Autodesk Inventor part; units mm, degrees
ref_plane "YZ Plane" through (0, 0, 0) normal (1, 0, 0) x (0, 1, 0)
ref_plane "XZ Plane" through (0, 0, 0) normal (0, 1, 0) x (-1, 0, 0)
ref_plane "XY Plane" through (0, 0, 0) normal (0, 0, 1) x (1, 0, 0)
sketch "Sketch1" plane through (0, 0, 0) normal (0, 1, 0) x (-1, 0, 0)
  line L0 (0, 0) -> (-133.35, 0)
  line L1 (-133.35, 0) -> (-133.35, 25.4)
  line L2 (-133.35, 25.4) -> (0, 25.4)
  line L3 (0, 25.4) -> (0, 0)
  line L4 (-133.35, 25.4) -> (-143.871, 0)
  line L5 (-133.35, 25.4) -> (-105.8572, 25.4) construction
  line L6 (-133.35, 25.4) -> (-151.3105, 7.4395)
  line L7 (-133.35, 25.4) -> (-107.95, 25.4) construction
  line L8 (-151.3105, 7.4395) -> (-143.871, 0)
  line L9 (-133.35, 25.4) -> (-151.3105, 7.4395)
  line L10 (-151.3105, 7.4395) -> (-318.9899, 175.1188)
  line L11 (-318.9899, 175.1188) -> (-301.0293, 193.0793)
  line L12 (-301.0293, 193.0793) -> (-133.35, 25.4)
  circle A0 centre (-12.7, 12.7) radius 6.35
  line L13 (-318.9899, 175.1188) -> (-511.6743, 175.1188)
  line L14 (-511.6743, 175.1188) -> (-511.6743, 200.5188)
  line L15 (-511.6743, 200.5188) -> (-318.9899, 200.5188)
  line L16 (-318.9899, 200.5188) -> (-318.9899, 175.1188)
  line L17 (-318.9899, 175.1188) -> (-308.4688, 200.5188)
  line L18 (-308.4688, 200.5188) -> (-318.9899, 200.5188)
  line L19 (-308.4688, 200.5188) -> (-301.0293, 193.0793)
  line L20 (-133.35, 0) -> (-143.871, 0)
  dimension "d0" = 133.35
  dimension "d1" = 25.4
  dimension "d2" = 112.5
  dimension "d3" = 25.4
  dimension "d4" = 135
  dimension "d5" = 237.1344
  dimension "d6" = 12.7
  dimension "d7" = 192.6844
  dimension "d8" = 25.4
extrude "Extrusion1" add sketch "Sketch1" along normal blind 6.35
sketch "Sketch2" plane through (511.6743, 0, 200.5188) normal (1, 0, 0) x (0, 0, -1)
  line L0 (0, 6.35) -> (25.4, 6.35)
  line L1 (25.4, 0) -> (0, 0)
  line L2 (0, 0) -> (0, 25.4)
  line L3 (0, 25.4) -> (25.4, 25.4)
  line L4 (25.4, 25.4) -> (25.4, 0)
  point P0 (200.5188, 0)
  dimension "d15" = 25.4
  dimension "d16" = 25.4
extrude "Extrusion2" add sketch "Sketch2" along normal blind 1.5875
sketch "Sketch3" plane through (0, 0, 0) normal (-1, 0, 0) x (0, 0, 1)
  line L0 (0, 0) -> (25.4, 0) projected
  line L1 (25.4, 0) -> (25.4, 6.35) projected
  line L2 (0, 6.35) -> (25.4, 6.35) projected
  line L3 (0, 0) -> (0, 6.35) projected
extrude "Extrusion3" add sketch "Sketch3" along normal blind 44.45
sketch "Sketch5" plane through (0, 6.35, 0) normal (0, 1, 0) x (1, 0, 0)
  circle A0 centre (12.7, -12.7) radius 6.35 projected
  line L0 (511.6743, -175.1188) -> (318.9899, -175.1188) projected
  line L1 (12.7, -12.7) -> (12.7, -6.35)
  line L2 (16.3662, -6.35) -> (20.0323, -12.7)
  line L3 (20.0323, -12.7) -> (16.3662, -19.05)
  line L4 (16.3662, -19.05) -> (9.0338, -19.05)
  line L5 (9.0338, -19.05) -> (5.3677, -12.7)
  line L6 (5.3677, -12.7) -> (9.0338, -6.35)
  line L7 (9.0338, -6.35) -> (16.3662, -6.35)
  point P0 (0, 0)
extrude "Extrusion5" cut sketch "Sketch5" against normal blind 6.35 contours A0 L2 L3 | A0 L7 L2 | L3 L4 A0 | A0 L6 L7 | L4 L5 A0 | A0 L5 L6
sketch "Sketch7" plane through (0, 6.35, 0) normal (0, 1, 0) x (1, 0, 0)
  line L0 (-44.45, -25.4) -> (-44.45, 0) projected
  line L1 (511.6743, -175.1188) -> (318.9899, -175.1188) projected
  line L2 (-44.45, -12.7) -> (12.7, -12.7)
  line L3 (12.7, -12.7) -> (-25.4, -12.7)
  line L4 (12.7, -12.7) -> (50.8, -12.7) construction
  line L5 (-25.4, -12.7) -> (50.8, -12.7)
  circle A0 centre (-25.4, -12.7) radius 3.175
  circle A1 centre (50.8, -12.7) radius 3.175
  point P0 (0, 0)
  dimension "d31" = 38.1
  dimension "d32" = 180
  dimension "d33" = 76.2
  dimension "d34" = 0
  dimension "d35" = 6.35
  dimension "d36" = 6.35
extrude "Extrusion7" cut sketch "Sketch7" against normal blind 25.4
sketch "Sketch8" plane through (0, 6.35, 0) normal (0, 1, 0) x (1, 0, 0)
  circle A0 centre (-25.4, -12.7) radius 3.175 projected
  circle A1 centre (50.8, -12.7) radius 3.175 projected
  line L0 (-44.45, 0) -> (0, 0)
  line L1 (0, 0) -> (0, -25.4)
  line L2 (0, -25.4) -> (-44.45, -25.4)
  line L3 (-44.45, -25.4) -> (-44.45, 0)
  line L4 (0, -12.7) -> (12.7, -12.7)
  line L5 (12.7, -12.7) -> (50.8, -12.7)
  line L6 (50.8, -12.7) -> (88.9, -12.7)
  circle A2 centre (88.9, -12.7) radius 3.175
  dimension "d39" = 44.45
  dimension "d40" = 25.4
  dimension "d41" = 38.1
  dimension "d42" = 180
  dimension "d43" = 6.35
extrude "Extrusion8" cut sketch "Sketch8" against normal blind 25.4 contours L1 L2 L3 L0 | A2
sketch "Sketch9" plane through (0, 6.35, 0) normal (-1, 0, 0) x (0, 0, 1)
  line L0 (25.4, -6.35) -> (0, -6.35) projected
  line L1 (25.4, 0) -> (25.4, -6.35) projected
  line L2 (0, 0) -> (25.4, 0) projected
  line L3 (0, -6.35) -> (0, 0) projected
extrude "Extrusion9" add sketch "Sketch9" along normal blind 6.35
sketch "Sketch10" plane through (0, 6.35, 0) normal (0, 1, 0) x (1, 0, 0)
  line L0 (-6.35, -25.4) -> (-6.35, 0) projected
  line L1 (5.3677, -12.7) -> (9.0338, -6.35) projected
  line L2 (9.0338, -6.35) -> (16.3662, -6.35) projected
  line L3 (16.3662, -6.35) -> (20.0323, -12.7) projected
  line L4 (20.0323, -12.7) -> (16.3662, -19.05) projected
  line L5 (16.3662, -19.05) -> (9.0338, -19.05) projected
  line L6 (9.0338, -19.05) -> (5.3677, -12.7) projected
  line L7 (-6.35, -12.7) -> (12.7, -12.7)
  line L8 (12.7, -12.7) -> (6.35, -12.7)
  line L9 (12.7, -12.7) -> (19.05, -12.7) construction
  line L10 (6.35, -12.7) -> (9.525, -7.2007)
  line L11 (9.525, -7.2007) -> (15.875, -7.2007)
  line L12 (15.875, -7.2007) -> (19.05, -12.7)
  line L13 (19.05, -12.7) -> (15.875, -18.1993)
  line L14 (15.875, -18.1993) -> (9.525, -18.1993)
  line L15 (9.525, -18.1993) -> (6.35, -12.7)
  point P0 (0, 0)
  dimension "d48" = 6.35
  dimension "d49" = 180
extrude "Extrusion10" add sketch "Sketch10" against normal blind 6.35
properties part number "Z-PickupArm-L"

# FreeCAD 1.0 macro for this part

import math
import FreeCAD as App
import Part
import Sketcher
from FreeCAD import Vector
Q = App.Units.Quantity

doc = App.newDocument("Part")
body = doc.addObject("PartDesign::Body", "Body")

sketch1 = doc.addObject("Sketcher::SketchObject", "Sketch")
body.addObject(sketch1)
sketch1.AttachmentSupport = (doc.XZ_Plane, [""])
sketch1.MapMode = "FlatFace"
sketch1.addGeometry([
    Part.LineSegment(Vector(0, 0, 0), Vector(0, 25.4, 0)),
    Part.LineSegment(Vector(0, 25.4, 0), Vector(133.35, 25.4, 0)),
    Part.LineSegment(Vector(133.35, 25.4, 0), Vector(308.4688, 200.5188, 0)),
    Part.LineSegment(Vector(308.4688, 200.5188, 0), Vector(511.6743, 200.5188, 0)),
    Part.LineSegment(Vector(511.6743, 200.5188, 0), Vector(511.6743, 175.1188, 0)),
    Part.LineSegment(Vector(511.6743, 175.1188, 0), Vector(318.9899, 175.1188, 0)),
    Part.LineSegment(Vector(318.9899, 175.1188, 0), Vector(151.3105, 7.4395, 0)),
    Part.LineSegment(Vector(151.3105, 7.4395, 0), Vector(143.871, 0, 0)),
    Part.LineSegment(Vector(143.871, 0, 0), Vector(0, 0, 0)),
    Part.Circle(Vector(12.7, 12.7, 0), Vector(0, 0, 1), 6.35),
], False)
sketch1.addConstraint([
    Sketcher.Constraint("Coincident", 0, 2, 1, 1),
    Sketcher.Constraint("Coincident", 1, 2, 2, 1),
    Sketcher.Constraint("Coincident", 2, 2, 3, 1),
    Sketcher.Constraint("Coincident", 3, 2, 4, 1),
    Sketcher.Constraint("Coincident", 4, 2, 5, 1),
    Sketcher.Constraint("Coincident", 5, 2, 6, 1),
    Sketcher.Constraint("Coincident", 6, 2, 7, 1),
    Sketcher.Constraint("Coincident", 7, 2, 8, 1),
    Sketcher.Constraint("Coincident", 8, 2, 0, 1),
    Sketcher.Constraint("Vertical", 0),
    Sketcher.Constraint("Horizontal", 1),
    Sketcher.Constraint("Horizontal", 3),
    Sketcher.Constraint("Vertical", 4),
    Sketcher.Constraint("Horizontal", 5),
    Sketcher.Constraint("Horizontal", 8),
    Sketcher.Constraint("Coincident", 8, 2, -1, 1),
    Sketcher.Constraint("Parallel", 2, 6),
    Sketcher.Constraint("Parallel", 6, 7),
    Sketcher.Constraint("Equal", 0, 4),
    Sketcher.Constraint("Diameter", 9, Q("0.5 in")),
    Sketcher.Constraint("DistanceY", 0, 1, 0, 2, Q("1 in")),
    Sketcher.Constraint("Angle", 6, Q("-135 deg")),
    Sketcher.Constraint("DistanceX", 1, 1, 1, 2, Q("5.25 in")),
    Sketcher.Constraint("DistanceX", -1, 1, 9, 3, Q("0.5 in")),
    Sketcher.Constraint("DistanceY", -1, 1, 9, 3, Q("0.5 in")),
    Sketcher.Constraint("DistanceX", 5, 2, 5, 1, Q("7.586 in")),
    Sketcher.Constraint("Distance", 6, Q("9.336 in")),
    Sketcher.Constraint("Distance", 2, Q("9.7502 in")),
    Sketcher.Constraint("DistanceX", 3, 1, 3, 2, Q("203.2055 mm")),
])
pad1 = doc.addObject("PartDesign::Pad", "Pad")
body.addObject(pad1)
pad1.Profile = sketch1
pad1.Length = Q("0.25 in")
pad1.Reversed = True

sketch2 = doc.addObject("Sketcher::SketchObject", "Sketch001")
body.addObject(sketch2)
sketch2.AttachmentSupport = (doc.YZ_Plane, [""])
sketch2.MapMode = "FlatFace"
sketch2.AttachmentOffset = App.Placement(Vector(0, 0, 511.6743), App.Rotation())
sketch2.addGeometry([
    Part.LineSegment(Vector(25.4, 200.5188, 0), Vector(0, 200.5188, 0)),
    Part.LineSegment(Vector(0, 200.5188, 0), Vector(0, 175.1188, 0)),
    Part.LineSegment(Vector(0, 175.1188, 0), Vector(25.4, 175.1188, 0)),
    Part.LineSegment(Vector(25.4, 175.1188, 0), Vector(25.4, 200.5188, 0)),
], False)
sketch2.addConstraint([
    Sketcher.Constraint("Coincident", 0, 2, 1, 1),
    Sketcher.Constraint("Coincident", 1, 2, 2, 1),
    Sketcher.Constraint("Coincident", 2, 2, 3, 1),
    Sketcher.Constraint("Coincident", 3, 2, 0, 1),
    Sketcher.Constraint("Horizontal", 0),
    Sketcher.Constraint("Vertical", 1),
    Sketcher.Constraint("Horizontal", 2),
    Sketcher.Constraint("Vertical", 3),
    Sketcher.Constraint("PointOnObject", 0, 2, -2),
    Sketcher.Constraint("Equal", 2, 1),
    Sketcher.Constraint("DistanceX", 0, 2, 0, 1, Q("1 in")),
    Sketcher.Constraint("DistanceY", -1, 1, 0, 2, Q("200.5188 mm")),
])
pad2 = doc.addObject("PartDesign::Pad", "Pad001")
body.addObject(pad2)
pad2.Profile = sketch2
pad2.Length = Q("0.0625 in")

sketch3 = doc.addObject("Sketcher::SketchObject", "Sketch002")
body.addObject(sketch3)
sketch3.AttachmentSupport = (doc.YZ_Plane, [""])
sketch3.MapMode = "FlatFace"
sketch3.addGeometry([
    Part.LineSegment(Vector(6.35, 0, 0), Vector(0, 0, 0)),
    Part.LineSegment(Vector(0, 0, 0), Vector(0, 25.4, 0)),
    Part.LineSegment(Vector(0, 25.4, 0), Vector(6.35, 25.4, 0)),
    Part.LineSegment(Vector(6.35, 25.4, 0), Vector(6.35, 0, 0)),
], False)
sketch3.addConstraint([
    Sketcher.Constraint("Coincident", 0, 2, 1, 1),
    Sketcher.Constraint("Coincident", 1, 2, 2, 1),
    Sketcher.Constraint("Coincident", 2, 2, 3, 1),
    Sketcher.Constraint("Coincident", 3, 2, 0, 1),
    Sketcher.Constraint("Horizontal", 0),
    Sketcher.Constraint("Vertical", 1),
    Sketcher.Constraint("Horizontal", 2),
    Sketcher.Constraint("Vertical", 3),
    Sketcher.Constraint("Coincident", 0, 2, -1, 1),
    Sketcher.Constraint("DistanceY", 1, 1, 1, 2, Q("1 in")),
    Sketcher.Constraint("DistanceX", 0, 2, 0, 1, Q("0.25 in")),
])
pad3 = doc.addObject("PartDesign::Pad", "Pad002")
body.addObject(pad3)
pad3.Profile = sketch3
pad3.Length = Q("1.75 in")
pad3.Reversed = True

sketch4 = doc.addObject("Sketcher::SketchObject", "Sketch003")
body.addObject(sketch4)
sketch4.AttachmentSupport = (doc.XZ_Plane, [""])
sketch4.MapMode = "FlatFace"
sketch4.AttachmentOffset = App.Placement(Vector(0, 0, -0.25 * 25.4), App.Rotation())
sketch4.addGeometry([
    Part.ArcOfCircle(Part.Circle(Vector(12.7, 12.7, 0), Vector(0, 0, 1), 6.35), math.radians(-29.999498), math.radians(29.999498)),
    Part.LineSegment(Vector(18.199281, 15.874947, 0), Vector(20.0323, 12.7, 0)),
    Part.LineSegment(Vector(20.0323, 12.7, 0), Vector(18.199281, 9.525053, 0)),
    Part.ArcOfCircle(Part.Circle(Vector(12.7, 12.7, 0), Vector(0, 0, 1), 6.35), math.radians(-90), math.radians(-29.999498)),
    Part.LineSegment(Vector(18.199281, 9.525053, 0), Vector(16.3662, 6.35, 0)),
    Part.LineSegment(Vector(16.3662, 6.35, 0), Vector(12.7, 6.35, 0)),
    Part.LineSegment(Vector(16.3662, 19.05, 0), Vector(18.199281, 15.874947, 0)),
    Part.ArcOfCircle(Part.Circle(Vector(12.7, 12.7, 0), Vector(0, 0, 1), 6.35), math.radians(29.999498), math.radians(90)),
    Part.LineSegment(Vector(12.7, 19.05, 0), Vector(16.3662, 19.05, 0)),
    Part.ArcOfCircle(Part.Circle(Vector(12.7, 12.7, 0), Vector(0, 0, 1), 6.35), math.radians(-150.000502), math.radians(-90)),
    Part.LineSegment(Vector(12.7, 6.35, 0), Vector(9.0338, 6.35, 0)),
    Part.LineSegment(Vector(9.0338, 6.35, 0), Vector(7.200719, 9.525053, 0)),
    Part.LineSegment(Vector(9.0338, 19.05, 0), Vector(12.7, 19.05, 0)),
    Part.ArcOfCircle(Part.Circle(Vector(12.7, 12.7, 0), Vector(0, 0, 1), 6.35), math.radians(90), math.radians(150.000502)),
    Part.LineSegment(Vector(7.200719, 15.874947, 0), Vector(9.0338, 19.05, 0)),
    Part.ArcOfCircle(Part.Circle(Vector(12.7, 12.7, 0), Vector(0, 0, 1), 6.35), math.radians(150.000502), math.radians(209.999498)),
    Part.LineSegment(Vector(7.200719, 9.525053, 0), Vector(5.3677, 12.7, 0)),
    Part.LineSegment(Vector(5.3677, 12.7, 0), Vector(7.200719, 15.874947, 0)),
], False)
sketch4.addConstraint([
    Sketcher.Constraint("Tangent", 0, 2, 1, 1),
    Sketcher.Constraint("Coincident", 1, 2, 2, 1),
    Sketcher.Constraint("Tangent", 2, 2, 0, 1),
    Sketcher.Constraint("Tangent", 3, 2, 4, 1),
    Sketcher.Constraint("Coincident", 4, 2, 5, 1),
    Sketcher.Constraint("Tangent", 5, 2, 3, 1),
    Sketcher.Constraint("Tangent", 6, 2, 7, 1),
    Sketcher.Constraint("Tangent", 7, 2, 8, 1),
    Sketcher.Constraint("Coincident", 8, 2, 6, 1),
    Sketcher.Constraint("Tangent", 9, 2, 10, 1),
    Sketcher.Constraint("Coincident", 10, 2, 11, 1),
    Sketcher.Constraint("Tangent", 11, 2, 9, 1),
    Sketcher.Constraint("Tangent", 12, 2, 13, 1),
    Sketcher.Constraint("Tangent", 13, 2, 14, 1),
    Sketcher.Constraint("Coincident", 14, 2, 12, 1),
    Sketcher.Constraint("Tangent", 15, 2, 16, 1),
    Sketcher.Constraint("Coincident", 16, 2, 17, 1),
    Sketcher.Constraint("Tangent", 17, 2, 15, 1),
    Sketcher.Constraint("Horizontal", 5),
    Sketcher.Constraint("Horizontal", 8),
    Sketcher.Constraint("Horizontal", 10),
    Sketcher.Constraint("Horizontal", 12),
    Sketcher.Constraint("Coincident", 3, 3, 0, 3),
    Sketcher.Constraint("Coincident", 7, 3, 0, 3),
    Sketcher.Constraint("Coincident", 9, 3, 0, 3),
    Sketcher.Constraint("Coincident", 13, 3, 0, 3),
    Sketcher.Constraint("Coincident", 15, 3, 0, 3),
    Sketcher.Constraint("Coincident", 3, 2, 2, 2),
    Sketcher.Constraint("Coincident", 6, 2, 0, 2),
    Sketcher.Constraint("Coincident", 15, 2, 11, 2),
    Sketcher.Constraint("Coincident", 17, 2, 13, 2),
    Sketcher.Constraint("Equal", 7, 9),
    Sketcher.Constraint("Parallel", 6, 11),
    Sketcher.Constraint("Parallel", 4, 14),
    Sketcher.Constraint("Horizontal", 15, 3, 1, 2),
    Sketcher.Constraint("Equal", 2, 4),
    Sketcher.Constraint("Radius", 0, Q("0.25 in")),
    Sketcher.Constraint("DistanceX", -1, 1, 0, 3, Q("0.5 in")),
    Sketcher.Constraint("DistanceY", -1, 1, 0, 3, Q("0.5 in")),
])
pocket1 = doc.addObject("PartDesign::Pocket", "Pocket")
body.addObject(pocket1)
pocket1.Profile = sketch4
pocket1.Length = Q("0.25 in")
pocket1.Reversed = True

sketch5 = doc.addObject("Sketcher::SketchObject", "Sketch004")
body.addObject(sketch5)
sketch5.AttachmentSupport = (doc.XZ_Plane, [""])
sketch5.MapMode = "FlatFace"
sketch5.AttachmentOffset = App.Placement(Vector(0, 0, -0.25 * 25.4), App.Rotation())
sketch5.addGeometry([
    Part.Circle(Vector(-25.4, 12.7, 0), Vector(0, 0, 1), 3.175),
    Part.Circle(Vector(50.8, 12.7, 0), Vector(0, 0, 1), 3.175),
], False)
sketch5.addConstraint([
    Sketcher.Constraint("Equal", 0, 1),
    Sketcher.Constraint("Horizontal", 0, 3, 1, 3),
    Sketcher.Constraint("Diameter", 0, Q("0.25 in")),
    Sketcher.Constraint("DistanceX", 0, 3, 1, 3, Q("3 in")),
    Sketcher.Constraint("DistanceX", 0, 3, -1, 1, Q("1 in")),
    Sketcher.Constraint("DistanceY", -1, 1, 0, 3, Q("0.5 in")),
])
pocket2 = doc.addObject("PartDesign::Pocket", "Pocket001")
body.addObject(pocket2)
pocket2.Profile = sketch5
pocket2.Length = Q("1 in")
pocket2.Reversed = True

sketch6 = doc.addObject("Sketcher::SketchObject", "Sketch005")
body.addObject(sketch6)
sketch6.AttachmentSupport = (doc.XZ_Plane, [""])
sketch6.MapMode = "FlatFace"
sketch6.AttachmentOffset = App.Placement(Vector(0, 0, -0.25 * 25.4), App.Rotation())
sketch6.addGeometry([
    Part.LineSegment(Vector(0, 25.4, 0), Vector(0, 0, 0)),
    Part.LineSegment(Vector(0, 0, 0), Vector(-44.45, 0, 0)),
    Part.LineSegment(Vector(-44.45, 0, 0), Vector(-44.45, 25.4, 0)),
    Part.LineSegment(Vector(-44.45, 25.4, 0), Vector(0, 25.4, 0)),
    Part.Circle(Vector(-25.4, 12.7, 0), Vector(0, 0, 1), 3.175),
    Part.Circle(Vector(88.9, 12.7, 0), Vector(0, 0, 1), 3.175),
], False)
sketch6.addConstraint([
    Sketcher.Constraint("Coincident", 0, 2, 1, 1),
    Sketcher.Constraint("Coincident", 1, 2, 2, 1),
    Sketcher.Constraint("Coincident", 2, 2, 3, 1),
    Sketcher.Constraint("Coincident", 3, 2, 0, 1),
    Sketcher.Constraint("Vertical", 0),
    Sketcher.Constraint("Horizontal", 1),
    Sketcher.Constraint("Vertical", 2),
    Sketcher.Constraint("Horizontal", 3),
    Sketcher.Constraint("Coincident", 0, 2, -1, 1),
    Sketcher.Constraint("Equal", 4, 5),
    Sketcher.Constraint("Horizontal", 4, 3, 5, 3),
    Sketcher.Constraint("Diameter", 4, Q("0.25 in")),
    Sketcher.Constraint("DistanceY", 0, 2, 0, 1, Q("1 in")),
    Sketcher.Constraint("DistanceX", 4, 3, -1, 1, Q("1 in")),
    Sketcher.Constraint("DistanceX", 1, 2, 1, 1, Q("1.75 in")),
    Sketcher.Constraint("DistanceY", -1, 1, 4, 3, Q("0.5 in")),
    Sketcher.Constraint("DistanceX", -1, 1, 5, 3, Q("3.5 in")),
])
pocket3 = doc.addObject("PartDesign::Pocket", "Pocket002")
body.addObject(pocket3)
pocket3.Profile = sketch6
pocket3.Length = Q("1 in")
pocket3.Reversed = True

sketch7 = doc.addObject("Sketcher::SketchObject", "Sketch006")
body.addObject(sketch7)
sketch7.AttachmentSupport = (doc.YZ_Plane, [""])
sketch7.MapMode = "FlatFace"
sketch7.addGeometry([
    Part.LineSegment(Vector(0, 0, 0), Vector(0, 25.4, 0)),
    Part.LineSegment(Vector(0, 25.4, 0), Vector(6.35, 25.4, 0)),
    Part.LineSegment(Vector(6.35, 25.4, 0), Vector(6.35, 0, 0)),
    Part.LineSegment(Vector(6.35, 0, 0), Vector(0, 0, 0)),
], False)
sketch7.addConstraint([
    Sketcher.Constraint("Coincident", 0, 2, 1, 1),
    Sketcher.Constraint("Coincident", 1, 2, 2, 1),
    Sketcher.Constraint("Coincident", 2, 2, 3, 1),
    Sketcher.Constraint("Coincident", 3, 2, 0, 1),
    Sketcher.Constraint("Vertical", 0),
    Sketcher.Constraint("Horizontal", 1),
    Sketcher.Constraint("Vertical", 2),
    Sketcher.Constraint("Horizontal", 3),
    Sketcher.Constraint("Coincident", 3, 2, -1, 1),
    Sketcher.Constraint("DistanceY", 0, 1, 0, 2, Q("1 in")),
    Sketcher.Constraint("DistanceX", 1, 1, 1, 2, Q("0.25 in")),
])
pad4 = doc.addObject("PartDesign::Pad", "Pad003")
body.addObject(pad4)
pad4.Profile = sketch7
pad4.Length = Q("0.25 in")
pad4.Reversed = True

sketch8 = doc.addObject("Sketcher::SketchObject", "Sketch007")
body.addObject(sketch8)
sketch8.AttachmentSupport = (doc.XZ_Plane, [""])
sketch8.MapMode = "FlatFace"
sketch8.AttachmentOffset = App.Placement(Vector(0, 0, -0.25 * 25.4), App.Rotation())
sketch8.addGeometry([
    Part.LineSegment(Vector(9.0338, 6.35, 0), Vector(5.3677, 12.7, 0)),
    Part.LineSegment(Vector(5.3677, 12.7, 0), Vector(9.0338, 19.05, 0)),
    Part.LineSegment(Vector(9.0338, 19.05, 0), Vector(16.3662, 19.05, 0)),
    Part.LineSegment(Vector(16.3662, 19.05, 0), Vector(20.0323, 12.7, 0)),
    Part.LineSegment(Vector(20.0323, 12.7, 0), Vector(16.3662, 6.35, 0)),
    Part.LineSegment(Vector(16.3662, 6.35, 0), Vector(9.0338, 6.35, 0)),
    Part.LineSegment(Vector(9.525, 18.1993, 0), Vector(6.35, 12.7, 0)),
    Part.LineSegment(Vector(6.35, 12.7, 0), Vector(9.525, 7.2007, 0)),
    Part.LineSegment(Vector(9.525, 7.2007, 0), Vector(15.875, 7.2007, 0)),
    Part.LineSegment(Vector(15.875, 7.2007, 0), Vector(19.05, 12.7, 0)),
    Part.LineSegment(Vector(19.05, 12.7, 0), Vector(15.875, 18.1993, 0)),
    Part.LineSegment(Vector(15.875, 18.1993, 0), Vector(9.525, 18.1993, 0)),
], False)
sketch8.addConstraint([
    Sketcher.Constraint("Coincident", 0, 2, 1, 1),
    Sketcher.Constraint("Coincident", 1, 2, 2, 1),
    Sketcher.Constraint("Coincident", 2, 2, 3, 1),
    Sketcher.Constraint("Coincident", 3, 2, 4, 1),
    Sketcher.Constraint("Coincident", 4, 2, 5, 1),
    Sketcher.Constraint("Coincident", 5, 2, 0, 1),
    Sketcher.Constraint("Coincident", 6, 2, 7, 1),
    Sketcher.Constraint("Coincident", 7, 2, 8, 1),
    Sketcher.Constraint("Coincident", 8, 2, 9, 1),
    Sketcher.Constraint("Coincident", 9, 2, 10, 1),
    Sketcher.Constraint("Coincident", 10, 2, 11, 1),
    Sketcher.Constraint("Coincident", 11, 2, 6, 1),
    Sketcher.Constraint("Horizontal", 2),
    Sketcher.Constraint("Horizontal", 5),
    Sketcher.Constraint("Horizontal", 8),
    Sketcher.Constraint("Horizontal", 11),
    Sketcher.Constraint("Parallel", 0, 3),
    Sketcher.Constraint("Parallel", 1, 4),
    Sketcher.Constraint("Parallel", 4, 6),
    Sketcher.Constraint("Parallel", 3, 7),
    Sketcher.Constraint("Parallel", 6, 9),
    Sketcher.Constraint("Parallel", 7, 10),
    Sketcher.Constraint("Horizontal", 0, 2, 3, 2),
    Sketcher.Constraint("Horizontal", 3, 2, 6, 2),
    Sketcher.Constraint("Horizontal", 6, 2, 9, 2),
    Sketcher.Constraint("Vertical", 2, 2, 4, 2),
    Sketcher.Constraint("Vertical", 1, 2, 5, 2),
    Sketcher.Constraint("Vertical", 8, 2, 10, 2),
    Sketcher.Constraint("DistanceX", 8, 1, 8, 2, Q("0.25 in")),
    Sketcher.Constraint("Distance", 6, Q("0.25 in")),
    Sketcher.Constraint("DistanceY", -1, 1, 4, 2, Q("0.25 in")),
    Sketcher.Constraint("DistanceX", -1, 1, 6, 2, Q("0.25 in")),
    Sketcher.Constraint("DistanceY", 0, 2, 1, 2, Q("0.25 in")),
    Sketcher.Constraint("Angle", 0, Q("119.9995 deg")),
    Sketcher.Constraint("DistanceX", 0, 2, 2, 2, Q("0.433 in")),
    Sketcher.Constraint("DistanceX", -1, 1, 0, 2, Q("5.3677 mm")),
])
pad5 = doc.addObject("PartDesign::Pad", "Pad004")
body.addObject(pad5)
pad5.Profile = sketch8
pad5.Length = Q("0.25 in")

doc.recompute()
